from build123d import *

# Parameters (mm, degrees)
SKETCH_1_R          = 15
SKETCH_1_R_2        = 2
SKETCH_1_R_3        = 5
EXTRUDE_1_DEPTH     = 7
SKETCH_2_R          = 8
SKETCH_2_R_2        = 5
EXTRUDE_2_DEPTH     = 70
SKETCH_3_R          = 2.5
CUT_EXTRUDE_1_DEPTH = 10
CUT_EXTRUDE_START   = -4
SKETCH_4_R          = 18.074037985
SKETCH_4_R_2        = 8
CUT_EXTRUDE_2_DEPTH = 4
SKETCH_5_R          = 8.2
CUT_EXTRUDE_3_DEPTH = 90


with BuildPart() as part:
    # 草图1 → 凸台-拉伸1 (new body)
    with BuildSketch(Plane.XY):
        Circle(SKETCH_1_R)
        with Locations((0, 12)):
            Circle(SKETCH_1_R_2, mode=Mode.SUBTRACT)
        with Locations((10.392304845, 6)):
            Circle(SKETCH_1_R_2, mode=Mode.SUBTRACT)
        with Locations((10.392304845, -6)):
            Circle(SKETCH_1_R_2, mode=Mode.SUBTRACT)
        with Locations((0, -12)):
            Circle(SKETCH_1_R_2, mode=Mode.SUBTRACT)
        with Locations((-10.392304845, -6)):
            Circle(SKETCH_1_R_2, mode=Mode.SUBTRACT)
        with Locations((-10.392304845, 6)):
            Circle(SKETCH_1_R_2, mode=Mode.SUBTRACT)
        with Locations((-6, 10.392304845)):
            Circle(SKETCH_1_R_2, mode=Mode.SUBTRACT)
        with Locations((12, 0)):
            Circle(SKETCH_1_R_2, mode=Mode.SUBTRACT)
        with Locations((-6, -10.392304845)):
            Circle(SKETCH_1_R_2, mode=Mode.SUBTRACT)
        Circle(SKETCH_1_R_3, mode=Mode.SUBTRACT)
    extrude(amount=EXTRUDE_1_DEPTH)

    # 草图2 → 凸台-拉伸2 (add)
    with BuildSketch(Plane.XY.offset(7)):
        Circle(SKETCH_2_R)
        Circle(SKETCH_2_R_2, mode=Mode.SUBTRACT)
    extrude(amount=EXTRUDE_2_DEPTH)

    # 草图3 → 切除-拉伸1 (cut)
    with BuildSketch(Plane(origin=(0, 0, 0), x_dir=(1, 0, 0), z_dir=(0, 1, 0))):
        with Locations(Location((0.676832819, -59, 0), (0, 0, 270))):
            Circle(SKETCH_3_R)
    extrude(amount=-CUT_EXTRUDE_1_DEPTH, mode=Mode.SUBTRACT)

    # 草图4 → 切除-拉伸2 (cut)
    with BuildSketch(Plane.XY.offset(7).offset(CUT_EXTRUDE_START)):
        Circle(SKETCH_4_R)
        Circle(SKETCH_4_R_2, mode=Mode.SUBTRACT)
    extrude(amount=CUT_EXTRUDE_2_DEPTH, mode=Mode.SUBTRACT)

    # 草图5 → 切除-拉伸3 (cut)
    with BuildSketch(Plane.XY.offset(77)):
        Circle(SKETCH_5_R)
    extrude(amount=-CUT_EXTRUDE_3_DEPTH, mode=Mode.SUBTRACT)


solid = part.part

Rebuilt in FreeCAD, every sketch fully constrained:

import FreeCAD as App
import Part
import Sketcher

doc = App.newDocument("Part")
params = doc.addObject("Spreadsheet::Sheet", "Params")
for row, (alias, value) in enumerate([
    ("sketch1_diameter", "30 mm"),
    ("sketch1_diameter2", "4 mm"),
    ("sketch1_diameter3", "10 mm"),
    ("pad1_length", "7 mm"),
    ("sketch2_diameter", "16 mm"),
    ("sketch2_diameter2", "10 mm"),
    ("pad2_length", "70 mm"),
    ("sketch3_diameter", "5 mm"),
    ("pocket1_length", "10 mm"),
    ("sketch4_diameter", "16 mm"),
    ("pocket2_length", "4 mm"),
    ("sketch5_diameter", "16.4 mm"),
    ("pocket3_length", "90 mm"),
], start=1):
    params.set(f"A{row}", alias)
    params.set(f"B{row}", "=" + value)
    params.setAlias(f"B{row}", alias)

body = doc.addObject("PartDesign::Body", "Body")

# Sketch on XY plane
sketch1 = body.newObject("Sketcher::SketchObject", "Sketch")
sketch1.AttachmentSupport = (doc.getObject("XY_Plane"), [""])
sketch1.MapMode = "FlatFace"
sketch1.addGeometry(Part.Circle(App.Vector(0, 0, 0), App.Vector(0, 0, 1), 15), False)
sketch1.addGeometry(Part.Circle(App.Vector(-6, -10.392305, 0), App.Vector(0, 0, 1), 2), False)
sketch1.addGeometry(Part.Circle(App.Vector(0, -12, 0), App.Vector(0, 0, 1), 2), False)
sketch1.addGeometry(Part.Circle(App.Vector(-10.392305, -6, 0), App.Vector(0, 0, 1), 2), False)
sketch1.addGeometry(Part.Circle(App.Vector(10.392305, -6, 0), App.Vector(0, 0, 1), 2), False)
sketch1.addGeometry(Part.Circle(App.Vector(-10.392305, 6, 0), App.Vector(0, 0, 1), 2), False)
sketch1.addGeometry(Part.Circle(App.Vector(0, 0, 0), App.Vector(0, 0, 1), 5), False)
sketch1.addGeometry(Part.Circle(App.Vector(-6, 10.392305, 0), App.Vector(0, 0, 1), 2), False)
sketch1.addGeometry(Part.Circle(App.Vector(0, 12, 0), App.Vector(0, 0, 1), 2), False)
sketch1.addGeometry(Part.Circle(App.Vector(12, 0, 0), App.Vector(0, 0, 1), 2), False)
sketch1.addGeometry(Part.Circle(App.Vector(10.392305, 6, 0), App.Vector(0, 0, 1), 2), False)
sketch1.addConstraint(Sketcher.Constraint("Coincident", 0, 3, -1, 1))
sketch1.addConstraint(Sketcher.Constraint("Coincident", 6, 3, -1, 1))
sketch1.addConstraint(Sketcher.Constraint("Equal", 1, 2))
sketch1.addConstraint(Sketcher.Constraint("Equal", 2, 3))
sketch1.addConstraint(Sketcher.Constraint("Equal", 3, 4))
sketch1.addConstraint(Sketcher.Constraint("Equal", 4, 5))
sketch1.addConstraint(Sketcher.Constraint("Equal", 5, 7))
sketch1.addConstraint(Sketcher.Constraint("Equal", 7, 8))
sketch1.addConstraint(Sketcher.Constraint("Equal", 8, 9))
sketch1.addConstraint(Sketcher.Constraint("Equal", 9, 10))
sketch1.addConstraint(Sketcher.Constraint("Symmetric", 4, 3, 5, 3, -1, 1))
sketch1.addConstraint(Sketcher.Constraint("Symmetric", 2, 3, 8, 3, -1, 1))
sketch1.addConstraint(Sketcher.Constraint("Symmetric", 3, 3, 10, 3, -1, 1))
sketch1.addConstraint(Sketcher.Constraint("Symmetric", 3, 3, 4, 3, -2))
sketch1.addConstraint(Sketcher.Constraint("Symmetric", 1, 3, 7, 3, -1))
sketch1.addConstraint(Sketcher.Constraint("PointOnObject", 2, 3, -2))
sketch1.addConstraint(Sketcher.Constraint("PointOnObject", 9, 3, -1))
sketch1.addConstraint(Sketcher.Constraint("Diameter", 0, 30.0))
sketch1.addConstraint(Sketcher.Constraint("Diameter", 1, 4.0))
sketch1.addConstraint(Sketcher.Constraint("Diameter", 6, 10.0))
sketch1.addConstraint(Sketcher.Constraint("DistanceX", 1, 3, -1, 1, 6.0))
sketch1.addConstraint(Sketcher.Constraint("DistanceY", 2, 3, -1, 1, 12.0))
sketch1.addConstraint(Sketcher.Constraint("DistanceY", 3, 3, -1, 1, 6.0))
sketch1.addConstraint(Sketcher.Constraint("DistanceX", -1, 1, 9, 3, 12.0))
sketch1.addConstraint(Sketcher.Constraint("DistanceX", 3, 3, 4, 3, 20.78461))
sketch1.addConstraint(Sketcher.Constraint("DistanceY", 1, 3, 7, 3, 20.78461))
sketch1.setExpression("Constraints[17]", "Params.sketch1_diameter")
sketch1.setExpression("Constraints[18]", "Params.sketch1_diameter2")
sketch1.setExpression("Constraints[19]", "Params.sketch1_diameter3")
pad1 = body.newObject("PartDesign::Pad", "Pad")
pad1.Profile = sketch1
pad1.setExpression("Length", "Params.pad1_length")

# Sketch on XY plane
sketch2 = body.newObject("Sketcher::SketchObject", "Sketch001")
sketch2.AttachmentSupport = (doc.getObject("XY_Plane"), [""])
sketch2.MapMode = "FlatFace"
sketch2.AttachmentOffset = App.Placement(App.Vector(0, 0, 7), App.Rotation())
sketch2.addGeometry(Part.Circle(App.Vector(0, 0, 0), App.Vector(0, 0, 1), 8), False)
sketch2.addGeometry(Part.Circle(App.Vector(0, 0, 0), App.Vector(0, 0, 1), 5), False)
sketch2.addConstraint(Sketcher.Constraint("Coincident", 0, 3, -1, 1))
sketch2.addConstraint(Sketcher.Constraint("Coincident", 1, 3, -1, 1))
sketch2.addConstraint(Sketcher.Constraint("Diameter", 0, 16.0))
sketch2.addConstraint(Sketcher.Constraint("Diameter", 1, 10.0))
sketch2.setExpression("Constraints[2]", "Params.sketch2_diameter")
sketch2.setExpression("Constraints[3]", "Params.sketch2_diameter2")
pad2 = body.newObject("PartDesign::Pad", "Pad001")
pad2.Profile = sketch2
pad2.setExpression("Length", "Params.pad2_length")

# Sketch on XZ plane
sketch3 = body.newObject("Sketcher::SketchObject", "Sketch002")
sketch3.AttachmentSupport = (doc.getObject("XZ_Plane"), [""])
sketch3.MapMode = "FlatFace"
sketch3.addGeometry(Part.Circle(App.Vector(0.676833, 59, 0), App.Vector(0, 0, 1), 2.5), False)
sketch3.addConstraint(Sketcher.Constraint("Diameter", 0, 5.0))
sketch3.addConstraint(Sketcher.Constraint("DistanceY", -1, 1, 0, 3, 59.0))
sketch3.addConstraint(Sketcher.Constraint("DistanceX", -1, 1, 0, 3, 0.676833))
sketch3.setExpression("Constraints[0]", "Params.sketch3_diameter")
pocket1 = body.newObject("PartDesign::Pocket", "Pocket")
pocket1.Profile = sketch3
pocket1.setExpression("Length", "Params.pocket1_length")
pocket1.Reversed = True

# Sketch on XY plane
sketch4 = body.newObject("Sketcher::SketchObject", "Sketch003")
sketch4.AttachmentSupport = (doc.getObject("XY_Plane"), [""])
sketch4.MapMode = "FlatFace"
sketch4.AttachmentOffset = App.Placement(App.Vector(0, 0, 3), App.Rotation())
sketch4.addGeometry(Part.Circle(App.Vector(0, 0, 0), App.Vector(0, 0, 1), 18.074038), False)
sketch4.addGeometry(Part.Circle(App.Vector(0, 0, 0), App.Vector(0, 0, 1), 8), False)
sketch4.addConstraint(Sketcher.Constraint("Coincident", 0, 3, -1, 1))
sketch4.addConstraint(Sketcher.Constraint("Coincident", 1, 3, -1, 1))
sketch4.addConstraint(Sketcher.Constraint("Diameter", 1, 16.0))
sketch4.addConstraint(Sketcher.Constraint("Diameter", 0, 36.148076))
sketch4.setExpression("Constraints[2]", "Params.sketch4_diameter")
pocket2 = body.newObject("PartDesign::Pocket", "Pocket001")
pocket2.Profile = sketch4
pocket2.setExpression("Length", "Params.pocket2_length")
pocket2.Reversed = True

# Sketch on XY plane
sketch5 = body.newObject("Sketcher::SketchObject", "Sketch004")
sketch5.AttachmentSupport = (doc.getObject("XY_Plane"), [""])
sketch5.MapMode = "FlatFace"
sketch5.AttachmentOffset = App.Placement(App.Vector(0, 0, 77), App.Rotation())
sketch5.addGeometry(Part.Circle(App.Vector(0, 0, 0), App.Vector(0, 0, 1), 8.2), False)
sketch5.addConstraint(Sketcher.Constraint("Coincident", 0, 3, -1, 1))
sketch5.addConstraint(Sketcher.Constraint("Diameter", 0, 16.4))
sketch5.setExpression("Constraints[1]", "Params.sketch5_diameter")
pocket3 = body.newObject("PartDesign::Pocket", "Pocket002")
pocket3.Profile = sketch5
pocket3.setExpression("Length", "Params.pocket3_length")

doc.recompute()
